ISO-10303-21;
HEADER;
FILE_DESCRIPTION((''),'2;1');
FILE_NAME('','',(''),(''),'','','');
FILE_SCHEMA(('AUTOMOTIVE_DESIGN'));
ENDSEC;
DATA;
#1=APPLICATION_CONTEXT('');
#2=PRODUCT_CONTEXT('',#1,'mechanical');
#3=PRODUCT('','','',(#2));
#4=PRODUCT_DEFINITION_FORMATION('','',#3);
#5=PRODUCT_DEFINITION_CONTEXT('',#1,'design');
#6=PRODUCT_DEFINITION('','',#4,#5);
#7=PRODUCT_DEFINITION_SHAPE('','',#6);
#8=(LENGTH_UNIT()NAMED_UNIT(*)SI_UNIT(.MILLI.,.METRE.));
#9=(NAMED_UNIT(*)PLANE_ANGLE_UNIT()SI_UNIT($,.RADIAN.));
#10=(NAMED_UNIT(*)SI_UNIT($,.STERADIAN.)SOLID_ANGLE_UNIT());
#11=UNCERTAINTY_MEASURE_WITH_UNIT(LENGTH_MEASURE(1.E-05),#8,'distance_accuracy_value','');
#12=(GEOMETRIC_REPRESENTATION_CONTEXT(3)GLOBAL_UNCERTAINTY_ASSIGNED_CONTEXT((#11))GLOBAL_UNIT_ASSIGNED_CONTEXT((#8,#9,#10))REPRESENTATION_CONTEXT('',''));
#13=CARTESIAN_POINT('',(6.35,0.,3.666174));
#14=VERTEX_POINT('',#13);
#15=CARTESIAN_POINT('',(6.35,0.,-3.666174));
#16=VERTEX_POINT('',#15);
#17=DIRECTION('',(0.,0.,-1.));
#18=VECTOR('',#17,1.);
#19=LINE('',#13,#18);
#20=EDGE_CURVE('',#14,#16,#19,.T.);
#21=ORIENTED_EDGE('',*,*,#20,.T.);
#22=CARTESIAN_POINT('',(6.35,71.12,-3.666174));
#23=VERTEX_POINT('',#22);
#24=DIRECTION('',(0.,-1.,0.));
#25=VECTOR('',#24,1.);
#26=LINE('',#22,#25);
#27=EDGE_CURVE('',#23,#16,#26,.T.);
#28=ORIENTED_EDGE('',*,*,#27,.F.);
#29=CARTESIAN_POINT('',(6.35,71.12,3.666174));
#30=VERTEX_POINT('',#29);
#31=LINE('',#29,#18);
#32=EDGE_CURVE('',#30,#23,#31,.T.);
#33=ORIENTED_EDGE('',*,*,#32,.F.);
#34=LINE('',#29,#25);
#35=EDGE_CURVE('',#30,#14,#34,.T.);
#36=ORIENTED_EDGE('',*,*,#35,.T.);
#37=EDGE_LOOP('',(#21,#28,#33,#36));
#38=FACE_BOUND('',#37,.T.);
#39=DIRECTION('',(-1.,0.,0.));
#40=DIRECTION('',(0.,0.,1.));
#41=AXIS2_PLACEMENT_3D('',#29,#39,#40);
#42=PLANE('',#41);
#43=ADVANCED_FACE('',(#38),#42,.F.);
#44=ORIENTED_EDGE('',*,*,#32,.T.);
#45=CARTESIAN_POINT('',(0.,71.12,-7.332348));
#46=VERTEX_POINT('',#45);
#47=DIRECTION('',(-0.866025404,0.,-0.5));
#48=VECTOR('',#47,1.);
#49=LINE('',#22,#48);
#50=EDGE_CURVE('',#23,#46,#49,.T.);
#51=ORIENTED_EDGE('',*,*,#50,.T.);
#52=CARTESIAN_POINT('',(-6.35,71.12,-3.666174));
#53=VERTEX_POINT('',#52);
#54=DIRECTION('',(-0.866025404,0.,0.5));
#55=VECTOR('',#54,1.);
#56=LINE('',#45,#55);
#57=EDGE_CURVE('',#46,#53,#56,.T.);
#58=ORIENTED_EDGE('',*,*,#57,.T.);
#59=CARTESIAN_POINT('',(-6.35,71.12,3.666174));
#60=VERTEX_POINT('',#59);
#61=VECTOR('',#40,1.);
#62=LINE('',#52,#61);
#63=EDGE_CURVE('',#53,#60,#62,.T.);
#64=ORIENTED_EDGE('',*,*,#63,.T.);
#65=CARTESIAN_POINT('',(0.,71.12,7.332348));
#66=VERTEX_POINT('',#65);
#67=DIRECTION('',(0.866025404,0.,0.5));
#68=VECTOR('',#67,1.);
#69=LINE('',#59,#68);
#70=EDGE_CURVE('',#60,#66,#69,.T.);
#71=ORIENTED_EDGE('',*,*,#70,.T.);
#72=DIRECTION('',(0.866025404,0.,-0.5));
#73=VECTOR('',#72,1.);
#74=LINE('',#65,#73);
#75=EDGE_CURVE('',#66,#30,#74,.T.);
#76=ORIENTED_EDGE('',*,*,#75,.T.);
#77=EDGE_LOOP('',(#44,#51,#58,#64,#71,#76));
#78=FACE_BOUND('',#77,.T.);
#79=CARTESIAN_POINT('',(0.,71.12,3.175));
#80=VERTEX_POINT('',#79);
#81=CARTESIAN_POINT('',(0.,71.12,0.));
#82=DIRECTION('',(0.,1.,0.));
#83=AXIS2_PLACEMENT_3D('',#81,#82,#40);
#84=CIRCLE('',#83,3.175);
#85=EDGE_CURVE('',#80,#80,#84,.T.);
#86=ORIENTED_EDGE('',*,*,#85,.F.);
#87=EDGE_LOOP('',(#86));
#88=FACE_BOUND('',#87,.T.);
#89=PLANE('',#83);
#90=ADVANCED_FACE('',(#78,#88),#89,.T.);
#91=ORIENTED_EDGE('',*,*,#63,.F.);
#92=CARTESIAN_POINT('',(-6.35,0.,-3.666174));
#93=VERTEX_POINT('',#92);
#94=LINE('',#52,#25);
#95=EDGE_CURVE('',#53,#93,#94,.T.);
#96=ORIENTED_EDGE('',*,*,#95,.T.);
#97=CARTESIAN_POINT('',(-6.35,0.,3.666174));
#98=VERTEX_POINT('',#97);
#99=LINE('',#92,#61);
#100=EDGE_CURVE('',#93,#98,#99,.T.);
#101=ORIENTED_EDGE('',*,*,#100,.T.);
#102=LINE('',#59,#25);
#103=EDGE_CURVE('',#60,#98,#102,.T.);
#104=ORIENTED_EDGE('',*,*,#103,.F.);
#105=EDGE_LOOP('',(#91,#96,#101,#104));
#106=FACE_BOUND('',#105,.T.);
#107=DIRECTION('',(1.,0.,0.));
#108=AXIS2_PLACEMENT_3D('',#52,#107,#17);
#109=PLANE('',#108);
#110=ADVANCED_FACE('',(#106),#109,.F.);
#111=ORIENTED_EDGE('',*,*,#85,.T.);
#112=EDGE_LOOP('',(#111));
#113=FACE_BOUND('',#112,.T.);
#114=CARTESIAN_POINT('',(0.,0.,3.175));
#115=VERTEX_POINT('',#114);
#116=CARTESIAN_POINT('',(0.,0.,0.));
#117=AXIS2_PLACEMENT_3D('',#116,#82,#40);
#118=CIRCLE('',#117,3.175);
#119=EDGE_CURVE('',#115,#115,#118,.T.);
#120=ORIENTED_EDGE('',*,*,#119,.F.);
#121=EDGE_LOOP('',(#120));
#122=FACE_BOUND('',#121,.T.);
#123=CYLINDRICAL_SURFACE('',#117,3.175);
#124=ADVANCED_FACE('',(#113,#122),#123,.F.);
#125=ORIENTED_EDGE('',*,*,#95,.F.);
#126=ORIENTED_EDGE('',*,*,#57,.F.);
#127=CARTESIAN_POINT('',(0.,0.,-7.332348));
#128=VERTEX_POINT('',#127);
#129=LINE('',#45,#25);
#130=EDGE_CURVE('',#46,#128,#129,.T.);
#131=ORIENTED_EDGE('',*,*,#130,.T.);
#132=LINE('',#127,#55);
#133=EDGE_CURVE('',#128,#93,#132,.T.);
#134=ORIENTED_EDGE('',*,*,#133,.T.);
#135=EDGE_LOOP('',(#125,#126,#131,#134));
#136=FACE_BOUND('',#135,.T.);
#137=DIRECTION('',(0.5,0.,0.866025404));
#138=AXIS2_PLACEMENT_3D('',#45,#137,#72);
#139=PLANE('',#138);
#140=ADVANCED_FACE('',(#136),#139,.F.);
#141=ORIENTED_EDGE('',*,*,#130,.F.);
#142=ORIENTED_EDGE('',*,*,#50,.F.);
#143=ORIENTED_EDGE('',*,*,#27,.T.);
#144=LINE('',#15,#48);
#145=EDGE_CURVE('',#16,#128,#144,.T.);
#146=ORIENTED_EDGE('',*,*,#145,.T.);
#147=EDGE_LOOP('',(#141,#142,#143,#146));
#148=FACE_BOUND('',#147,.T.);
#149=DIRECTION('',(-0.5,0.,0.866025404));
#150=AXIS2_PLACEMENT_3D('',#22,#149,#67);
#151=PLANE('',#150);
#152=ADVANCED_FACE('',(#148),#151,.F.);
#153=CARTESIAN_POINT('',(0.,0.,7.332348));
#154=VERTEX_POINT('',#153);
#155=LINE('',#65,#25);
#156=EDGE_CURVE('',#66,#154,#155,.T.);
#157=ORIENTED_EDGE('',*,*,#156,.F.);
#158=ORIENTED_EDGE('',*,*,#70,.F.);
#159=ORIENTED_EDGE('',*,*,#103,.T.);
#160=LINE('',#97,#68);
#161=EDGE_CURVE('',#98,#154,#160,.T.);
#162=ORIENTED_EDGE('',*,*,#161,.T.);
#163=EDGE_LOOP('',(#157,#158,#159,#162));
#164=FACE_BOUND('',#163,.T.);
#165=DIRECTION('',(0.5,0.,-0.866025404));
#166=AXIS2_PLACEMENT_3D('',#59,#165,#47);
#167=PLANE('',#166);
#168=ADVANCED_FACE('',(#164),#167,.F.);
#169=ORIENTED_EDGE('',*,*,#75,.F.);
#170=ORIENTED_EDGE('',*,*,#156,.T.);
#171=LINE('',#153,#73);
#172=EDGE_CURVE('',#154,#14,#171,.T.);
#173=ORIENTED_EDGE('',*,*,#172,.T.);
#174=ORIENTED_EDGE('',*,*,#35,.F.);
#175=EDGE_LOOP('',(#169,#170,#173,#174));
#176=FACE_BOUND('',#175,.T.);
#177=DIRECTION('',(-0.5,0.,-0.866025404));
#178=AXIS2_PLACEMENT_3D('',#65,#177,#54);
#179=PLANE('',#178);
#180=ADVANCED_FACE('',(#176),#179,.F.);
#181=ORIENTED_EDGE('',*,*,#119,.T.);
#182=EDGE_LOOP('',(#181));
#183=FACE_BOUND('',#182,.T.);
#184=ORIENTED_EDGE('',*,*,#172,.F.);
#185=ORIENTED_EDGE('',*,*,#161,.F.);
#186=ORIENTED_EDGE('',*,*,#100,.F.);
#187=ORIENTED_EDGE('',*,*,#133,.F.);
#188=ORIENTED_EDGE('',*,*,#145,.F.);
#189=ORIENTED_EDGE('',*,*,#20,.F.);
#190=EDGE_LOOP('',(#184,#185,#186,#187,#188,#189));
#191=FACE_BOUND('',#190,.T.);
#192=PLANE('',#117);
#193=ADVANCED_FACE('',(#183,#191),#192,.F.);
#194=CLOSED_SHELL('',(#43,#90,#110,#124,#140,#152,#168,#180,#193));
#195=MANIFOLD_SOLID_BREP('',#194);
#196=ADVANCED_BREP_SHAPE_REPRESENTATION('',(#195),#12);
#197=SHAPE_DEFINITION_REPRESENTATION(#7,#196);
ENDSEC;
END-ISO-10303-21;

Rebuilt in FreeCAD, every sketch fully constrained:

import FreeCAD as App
import Part
import Sketcher
Q = App.Units.Quantity

doc = App.newDocument("Part")
body = doc.addObject("PartDesign::Body", "Body")

sketch1 = body.newObject("Sketcher::SketchObject", "Sketch")
sketch1.AttachmentSupport = (doc.getObject("XZ_Plane"), [""])
sketch1.MapMode = "FlatFace"
sketch1.addGeometry([
    Part.LineSegment(App.Vector(0, 7, 0), App.Vector(6, 4, 0)),
    Part.LineSegment(App.Vector(6, 4, 0), App.Vector(6, -4, 0)),
    Part.LineSegment(App.Vector(6, -4, 0), App.Vector(0, -7, 0)),
    Part.LineSegment(App.Vector(0, -7, 0), App.Vector(-6, -4, 0)),
    Part.LineSegment(App.Vector(-6, -4, 0), App.Vector(-6, 4, 0)),
    Part.LineSegment(App.Vector(-6, 4, 0), App.Vector(0, 7, 0)),
], False)
sketch1.addConstraint([
    Sketcher.Constraint("Coincident", 0, 2, 1, 1),
    Sketcher.Constraint("Coincident", 1, 2, 2, 1),
    Sketcher.Constraint("Coincident", 2, 2, 3, 1),
    Sketcher.Constraint("Coincident", 3, 2, 4, 1),
    Sketcher.Constraint("Coincident", 4, 2, 5, 1),
    Sketcher.Constraint("Coincident", 5, 2, 0, 1),
    Sketcher.Constraint("Vertical", 1),
    Sketcher.Constraint("Vertical", 4),
    Sketcher.Constraint("Symmetric", 0, 2, 3, 2, -1, 1),
    Sketcher.Constraint("Symmetric", 2, 2, 5, 2, -1, 1),
    Sketcher.Constraint("PointOnObject", 2, 2, -2),
    Sketcher.Constraint("Parallel", 2, 5),
    Sketcher.Constraint("Horizontal", 1, 2, 3, 2),
    Sketcher.Constraint("Angle", 0, Q("-30 deg")),
    Sketcher.Constraint("DistanceX", 3, 2, 1, 2, Q("0.5 in")),
    Sketcher.Constraint("DistanceY", 1, 2, 1, 1, Q("7.332348 mm")),
])
pad1 = body.newObject("PartDesign::Pad", "Pad")
pad1.Profile = sketch1
pad1.Length = Q("2.8 in")
pad1.Reversed = True

sketch2 = body.newObject("Sketcher::SketchObject", "Sketch001")
sketch2.AttachmentSupport = (doc.getObject("XZ_Plane"), [""])
sketch2.MapMode = "FlatFace"
sketch2.AttachmentOffset = App.Placement(App.Vector(0, 0, -2.8 * 25.4), App.Rotation())
sketch2.addGeometry(Part.Circle(App.Vector(0, 0, 0), App.Vector(0, 0, 1), 3.2), False)
sketch2.addConstraint([
    Sketcher.Constraint("Coincident", 0, 3, -1, 1),
    Sketcher.Constraint("Diameter", 0, Q("0.25 in")),
])
pocket1 = body.newObject("PartDesign::Pocket", "Pocket")
pocket1.Profile = sketch2
pocket1.Type = "ThroughAll"
pocket1.Midplane = True

doc.recompute()
